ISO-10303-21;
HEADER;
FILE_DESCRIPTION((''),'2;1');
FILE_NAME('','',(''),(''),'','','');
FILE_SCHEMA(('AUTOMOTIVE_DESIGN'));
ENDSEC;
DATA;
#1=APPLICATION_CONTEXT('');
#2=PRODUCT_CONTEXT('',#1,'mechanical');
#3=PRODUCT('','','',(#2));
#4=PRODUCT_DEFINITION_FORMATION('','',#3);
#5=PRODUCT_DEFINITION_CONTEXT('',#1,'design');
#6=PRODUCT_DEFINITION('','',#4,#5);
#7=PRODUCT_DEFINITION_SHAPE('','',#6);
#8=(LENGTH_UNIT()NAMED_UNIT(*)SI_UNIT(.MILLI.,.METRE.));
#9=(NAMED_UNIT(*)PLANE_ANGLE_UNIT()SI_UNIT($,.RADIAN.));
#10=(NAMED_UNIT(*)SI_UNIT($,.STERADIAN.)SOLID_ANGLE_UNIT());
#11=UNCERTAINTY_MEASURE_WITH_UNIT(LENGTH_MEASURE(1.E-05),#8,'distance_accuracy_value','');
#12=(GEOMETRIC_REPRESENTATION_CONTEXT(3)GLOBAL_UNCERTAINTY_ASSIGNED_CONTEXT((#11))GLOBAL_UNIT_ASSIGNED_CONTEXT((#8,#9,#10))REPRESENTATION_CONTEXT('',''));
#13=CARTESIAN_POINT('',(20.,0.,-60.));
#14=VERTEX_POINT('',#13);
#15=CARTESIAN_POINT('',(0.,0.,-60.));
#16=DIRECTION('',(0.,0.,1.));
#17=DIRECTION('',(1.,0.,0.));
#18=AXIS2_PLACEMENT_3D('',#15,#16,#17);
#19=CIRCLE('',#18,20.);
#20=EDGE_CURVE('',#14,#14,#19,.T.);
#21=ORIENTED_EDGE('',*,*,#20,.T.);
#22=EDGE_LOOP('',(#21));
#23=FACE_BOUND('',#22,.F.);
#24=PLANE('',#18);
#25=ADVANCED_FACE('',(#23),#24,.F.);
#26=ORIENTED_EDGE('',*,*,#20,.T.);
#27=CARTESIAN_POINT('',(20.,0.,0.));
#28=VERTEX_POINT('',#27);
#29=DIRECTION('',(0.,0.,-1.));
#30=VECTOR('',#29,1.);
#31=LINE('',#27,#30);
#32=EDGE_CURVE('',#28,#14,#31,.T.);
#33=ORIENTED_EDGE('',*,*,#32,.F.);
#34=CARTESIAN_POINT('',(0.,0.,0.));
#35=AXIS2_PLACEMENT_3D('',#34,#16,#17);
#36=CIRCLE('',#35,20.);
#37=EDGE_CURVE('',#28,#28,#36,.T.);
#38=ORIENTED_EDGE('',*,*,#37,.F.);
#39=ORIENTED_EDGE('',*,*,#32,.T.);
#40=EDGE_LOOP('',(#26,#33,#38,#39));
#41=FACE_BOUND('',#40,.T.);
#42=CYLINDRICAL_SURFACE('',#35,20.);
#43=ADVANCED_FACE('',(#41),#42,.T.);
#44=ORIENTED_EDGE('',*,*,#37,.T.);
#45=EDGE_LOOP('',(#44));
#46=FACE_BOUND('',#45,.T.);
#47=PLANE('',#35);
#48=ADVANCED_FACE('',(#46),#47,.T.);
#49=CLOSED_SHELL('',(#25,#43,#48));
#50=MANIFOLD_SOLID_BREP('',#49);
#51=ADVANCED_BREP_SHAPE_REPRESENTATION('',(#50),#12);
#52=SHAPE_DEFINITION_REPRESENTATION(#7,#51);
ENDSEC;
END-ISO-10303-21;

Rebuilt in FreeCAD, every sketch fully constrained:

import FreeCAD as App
import Part
import Sketcher

V = App.Vector
Q = App.Units.Quantity

doc = App.newDocument("Part")
body = doc.addObject("PartDesign::Body", "Body")

sketch1 = body.newObject("Sketcher::SketchObject", "Sketch")
sketch1.AttachmentSupport = (doc.getObject("XY_Plane"), [""])
sketch1.MapMode = "FlatFace"
sketch1.addGeometry(Part.Circle(V(0, 0, 0), V(0, 0, 1), 20), False)
sketch1.addConstraint([
    Sketcher.Constraint("Coincident", 0, 3, -1, 1),
    Sketcher.Constraint("Diameter", 0, Q("40 mm")),
])
pad1 = body.newObject("PartDesign::Pad", "Pad")
pad1.Profile = sketch1
pad1.Length = 60
pad1.Reversed = True

doc.recompute()
